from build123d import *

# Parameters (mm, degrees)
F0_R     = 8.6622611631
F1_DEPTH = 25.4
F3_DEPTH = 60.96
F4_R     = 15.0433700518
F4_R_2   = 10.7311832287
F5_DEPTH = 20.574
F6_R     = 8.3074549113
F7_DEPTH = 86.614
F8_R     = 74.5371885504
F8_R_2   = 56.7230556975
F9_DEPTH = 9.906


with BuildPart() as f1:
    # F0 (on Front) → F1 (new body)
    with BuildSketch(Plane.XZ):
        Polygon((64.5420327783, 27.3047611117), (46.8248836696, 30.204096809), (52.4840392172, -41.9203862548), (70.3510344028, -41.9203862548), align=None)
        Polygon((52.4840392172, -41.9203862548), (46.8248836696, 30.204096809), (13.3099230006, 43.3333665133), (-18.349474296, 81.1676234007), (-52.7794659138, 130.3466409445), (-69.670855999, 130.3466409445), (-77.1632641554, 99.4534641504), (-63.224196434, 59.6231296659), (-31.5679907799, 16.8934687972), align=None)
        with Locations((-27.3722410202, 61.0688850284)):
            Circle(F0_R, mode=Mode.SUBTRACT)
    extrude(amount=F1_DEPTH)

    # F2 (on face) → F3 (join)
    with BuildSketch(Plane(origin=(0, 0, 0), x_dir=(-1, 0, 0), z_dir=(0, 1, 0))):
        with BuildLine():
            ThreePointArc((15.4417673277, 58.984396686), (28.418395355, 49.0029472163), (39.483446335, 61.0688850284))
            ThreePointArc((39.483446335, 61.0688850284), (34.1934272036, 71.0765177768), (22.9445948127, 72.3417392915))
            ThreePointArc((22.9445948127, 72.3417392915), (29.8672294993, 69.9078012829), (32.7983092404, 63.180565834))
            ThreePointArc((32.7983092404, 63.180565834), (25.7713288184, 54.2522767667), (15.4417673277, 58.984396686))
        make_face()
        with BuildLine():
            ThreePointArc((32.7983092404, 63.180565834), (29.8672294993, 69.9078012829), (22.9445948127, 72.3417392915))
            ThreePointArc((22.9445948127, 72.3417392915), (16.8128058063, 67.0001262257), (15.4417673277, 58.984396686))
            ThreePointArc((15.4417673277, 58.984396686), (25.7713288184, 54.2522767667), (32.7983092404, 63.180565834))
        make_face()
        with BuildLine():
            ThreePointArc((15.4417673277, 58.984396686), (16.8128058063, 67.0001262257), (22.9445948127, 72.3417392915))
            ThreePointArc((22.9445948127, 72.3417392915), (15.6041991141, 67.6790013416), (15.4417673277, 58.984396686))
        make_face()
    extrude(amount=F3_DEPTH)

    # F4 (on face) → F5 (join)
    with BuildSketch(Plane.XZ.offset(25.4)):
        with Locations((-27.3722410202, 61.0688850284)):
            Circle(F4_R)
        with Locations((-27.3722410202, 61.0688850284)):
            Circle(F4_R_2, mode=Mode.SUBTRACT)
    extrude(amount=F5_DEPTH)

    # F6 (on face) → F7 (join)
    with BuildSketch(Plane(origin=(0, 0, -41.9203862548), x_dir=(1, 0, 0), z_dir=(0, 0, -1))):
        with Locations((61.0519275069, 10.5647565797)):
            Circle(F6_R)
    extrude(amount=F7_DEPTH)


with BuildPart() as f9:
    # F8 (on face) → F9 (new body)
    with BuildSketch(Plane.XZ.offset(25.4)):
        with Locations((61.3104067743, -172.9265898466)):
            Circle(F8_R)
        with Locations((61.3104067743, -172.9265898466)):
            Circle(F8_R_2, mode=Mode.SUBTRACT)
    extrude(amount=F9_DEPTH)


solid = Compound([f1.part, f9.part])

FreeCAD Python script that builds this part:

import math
import FreeCAD as App
import Part
import Sketcher

V = App.Vector
Q = App.Units.Quantity

doc = App.newDocument("Part")
body = doc.addObject("PartDesign::Body", "Body")

# Sketch on XZ plane
sketch1 = doc.addObject("Sketcher::SketchObject", "Sketch")
body.addObject(sketch1)
sketch1.AttachmentSupport = (doc.XZ_Plane, [""])
sketch1.MapMode = "FlatFace"
sketch1.addGeometry([
    Part.LineSegment(V(65, 27, 0), V(47, 30, 0)),  # 0
    Part.LineSegment(V(47, 30, 0), V(13, 43, 0)),  # 1
    Part.LineSegment(V(13, 43, 0), V(-18, 81, 0)),  # 2
    Part.LineSegment(V(-18, 81, 0), V(-53, 130, 0)),  # 3
    Part.LineSegment(V(-53, 130, 0), V(-70, 130, 0)),  # 4
    Part.LineSegment(V(-70, 130, 0), V(-77, 99, 0)),  # 5
    Part.LineSegment(V(-77, 99, 0), V(-63, 60, 0)),  # 6
    Part.LineSegment(V(-63, 60, 0), V(-32, 17, 0)),  # 7
    Part.LineSegment(V(-32, 17, 0), V(52, -42, 0)),  # 8
    Part.LineSegment(V(52, -42, 0), V(70, -42, 0)),  # 9
    Part.LineSegment(V(70, -42, 0), V(65, 27, 0)),  # 10
    Part.Circle(V(-27, 61, 0), V(0, 0, 1), 9),  # 11
], False)
sketch1.addConstraint([
    Sketcher.Constraint("Coincident", 0, 2, 1, 1),
    Sketcher.Constraint("Coincident", 1, 2, 2, 1),
    Sketcher.Constraint("Coincident", 2, 2, 3, 1),
    Sketcher.Constraint("Coincident", 3, 2, 4, 1),
    Sketcher.Constraint("Coincident", 4, 2, 5, 1),
    Sketcher.Constraint("Coincident", 5, 2, 6, 1),
    Sketcher.Constraint("Coincident", 6, 2, 7, 1),
    Sketcher.Constraint("Coincident", 7, 2, 8, 1),
    Sketcher.Constraint("Coincident", 8, 2, 9, 1),
    Sketcher.Constraint("Coincident", 9, 2, 10, 1),
    Sketcher.Constraint("Coincident", 10, 2, 0, 1),
    Sketcher.Constraint("Horizontal", 4),
    Sketcher.Constraint("Horizontal", 9),
    Sketcher.Constraint("Diameter", 11, Q("17.324522 mm")),
    Sketcher.Constraint("DistanceX", 4, 2, 11, 3, Q("1.6652998 in")),
    Sketcher.Constraint("DistanceX", 4, 2, 4, 1, Q("16.89139 mm")),
    Sketcher.Constraint("DistanceX", 5, 2, 3, 2, Q("24.383798 mm")),
    Sketcher.Constraint("DistanceX", 10, 2, 9, 2, Q("5.809002 mm")),
    Sketcher.Constraint("Distance", 5, Q("31.788749 mm")),
    Sketcher.Constraint("Distance", 6, Q("42.198971 mm")),
    Sketcher.Constraint("Distance", 8, Q("102.585639 mm")),
    Sketcher.Constraint("Distance", 10, Q("69.46845 mm")),
    Sketcher.Constraint("DistanceX", 9, 1, 9, 2, Q("17.866995 mm")),
    Sketcher.Constraint("DistanceX", 11, 3, -1, 1, Q("27.372241 mm")),
    Sketcher.Constraint("DistanceY", -1, 1, 3, 2, Q("130.346641 mm")),
    Sketcher.Constraint("DistanceY", -1, 1, 6, 2, Q("59.62313 mm")),
    Sketcher.Constraint("DistanceX", 7, 2, -1, 1, Q("31.567991 mm")),
    Sketcher.Constraint("DistanceY", -1, 1, 7, 2, Q("16.893469 mm")),
    Sketcher.Constraint("DistanceX", -1, 1, 8, 2, Q("52.484039 mm")),
    Sketcher.Constraint("DistanceY", 0, 2, 11, 3, Q("30.864788 mm")),
    Sketcher.Constraint("DistanceX", 1, 2, 0, 2, Q("33.514961 mm")),
    Sketcher.Constraint("DistanceY", 0, 2, 1, 2, Q("13.12927 mm")),
    Sketcher.Constraint("DistanceY", 11, 3, 2, 2, Q("20.098738 mm")),
    Sketcher.Constraint("DistanceX", 3, 2, 2, 2, Q("34.429992 mm")),
    Sketcher.Constraint("DistanceX", 3, 2, 1, 2, Q("66.089389 mm")),
    Sketcher.Constraint("DistanceY", 2, 2, 5, 2, Q("18.285841 mm")),
])
pad1 = doc.addObject("PartDesign::Pad", "Pad")
body.addObject(pad1)
pad1.Profile = sketch1
pad1.Length = Q("1 in")

# Sketch on XZ plane
sketch2 = doc.addObject("Sketcher::SketchObject", "Sketch001")
body.addObject(sketch2)
sketch2.AttachmentSupport = (doc.XZ_Plane, [""])
sketch2.MapMode = "FlatFace"
sketch2.addGeometry([
    Part.ArcOfCircle(Part.Circle(V(-27, 61, 0), V(0, 0, 1), 12), math.radians(180), math.radians(350)),
    Part.ArcOfCircle(Part.Circle(V(-27, 61, 0), V(0, 0, 1), 12), math.radians(69), math.radians(180)),
    Part.ArcOfCircle(Part.Circle(V(-24, 63, 0), V(0, 0, 1), 9), math.radians(-27), math.radians(86)),
], False)
sketch2.addConstraint([
    Sketcher.Constraint("Tangent", 0, 1, 1, 2),
    Sketcher.Constraint("Coincident", 1, 1, 2, 2),
    Sketcher.Constraint("Coincident", 2, 1, 0, 2),
    Sketcher.Constraint("Equal", 0, 1),
    Sketcher.Constraint("Horizontal", 1, 3, 0, 1),
    Sketcher.Constraint("Radius", 2, Q("9.18551 mm")),
    Sketcher.Constraint("DistanceY", -1, 1, 1, 1, Q("2.8481 in")),
    Sketcher.Constraint("Radius", 0, Q("12.111205 mm")),
    Sketcher.Constraint("DistanceX", 2, 3, -1, 1, Q("23.612799 mm")),
    Sketcher.Constraint("DistanceX", 0, 3, -1, 1, Q("27.372241 mm")),
    Sketcher.Constraint("DistanceY", 0, 3, 2, 3, Q("2.111681 mm")),
])
pad2 = doc.addObject("PartDesign::Pad", "Pad001")
body.addObject(pad2)
pad2.Profile = sketch2
pad2.Length = Q("2.4 in")
pad2.Reversed = True

# Sketch on XZ plane
sketch3 = doc.addObject("Sketcher::SketchObject", "Sketch002")
body.addObject(sketch3)
sketch3.AttachmentSupport = (doc.XZ_Plane, [""])
sketch3.MapMode = "FlatFace"
sketch3.AttachmentOffset = App.Placement(V(0, 0, 1 * 25.4), App.Rotation())
sketch3.addGeometry([
    Part.Circle(V(-27, 61, 0), V(0, 0, 1), 15),
    Part.Circle(V(-27, 61, 0), V(0, 0, 1), 11),
], False)
sketch3.addConstraint([
    Sketcher.Constraint("Coincident", 1, 3, 0, 3),
    Sketcher.Constraint("Diameter", 0, Q("30.08674 mm")),
    Sketcher.Constraint("Diameter", 1, Q("21.462366 mm")),
    Sketcher.Constraint("DistanceX", 0, 3, -1, 1, Q("27.372241 mm")),
    Sketcher.Constraint("DistanceY", -1, 1, 0, 3, Q("61.068885 mm")),
])
pad3 = doc.addObject("PartDesign::Pad", "Pad002")
body.addObject(pad3)
pad3.Profile = sketch3
pad3.Length = Q("0.81 in")

# Sketch on XY plane
sketch4 = doc.addObject("Sketcher::SketchObject", "Sketch003")
body.addObject(sketch4)
sketch4.AttachmentSupport = (doc.XY_Plane, [""])
sketch4.MapMode = "FlatFace"
sketch4.AttachmentOffset = App.Placement(V(0, 0, -41.920386), App.Rotation())
sketch4.addGeometry(Part.Circle(V(61, -11, 0), V(0, 0, 1), 8), False)
sketch4.addConstraint([
    Sketcher.Constraint("Diameter", 0, Q("16.61491 mm")),
    Sketcher.Constraint("DistanceX", -1, 1, 0, 3, Q("61.051928 mm")),
    Sketcher.Constraint("DistanceY", 0, 3, -1, 1, Q("10.564757 mm")),
])
pad4 = doc.addObject("PartDesign::Pad", "Pad003")
body.addObject(pad4)
pad4.Profile = sketch4
pad4.Length = Q("3.41 in")
pad4.Reversed = True
body2 = doc.addObject("PartDesign::Body", "Body001")

# Sketch on XZ plane
sketch5 = doc.addObject("Sketcher::SketchObject", "Sketch004")
body2.addObject(sketch5)
sketch5.AttachmentSupport = (doc.getObject("XZ_Plane001"), [""])
sketch5.MapMode = "FlatFace"
sketch5.AttachmentOffset = App.Placement(V(0, 0, 1 * 25.4), App.Rotation())
sketch5.addGeometry([
    Part.Circle(V(61, -173, 0), V(0, 0, 1), 75),
    Part.Circle(V(61, -173, 0), V(0, 0, 1), 57),
], False)
sketch5.addConstraint([
    Sketcher.Constraint("Coincident", 1, 3, 0, 3),
    Sketcher.Constraint("Diameter", 1, Q("113.446111 mm")),
    Sketcher.Constraint("Diameter", 0, Q("149.074377 mm")),
    Sketcher.Constraint("DistanceY", 0, 3, -1, 1, Q("172.92659 mm")),
    Sketcher.Constraint("DistanceX", -1, 1, 0, 3, Q("61.310407 mm")),
])
pad5 = doc.addObject("PartDesign::Pad", "Pad004")
body2.addObject(pad5)
pad5.Profile = sketch5
pad5.Length = Q("0.39 in")

doc.recompute()
